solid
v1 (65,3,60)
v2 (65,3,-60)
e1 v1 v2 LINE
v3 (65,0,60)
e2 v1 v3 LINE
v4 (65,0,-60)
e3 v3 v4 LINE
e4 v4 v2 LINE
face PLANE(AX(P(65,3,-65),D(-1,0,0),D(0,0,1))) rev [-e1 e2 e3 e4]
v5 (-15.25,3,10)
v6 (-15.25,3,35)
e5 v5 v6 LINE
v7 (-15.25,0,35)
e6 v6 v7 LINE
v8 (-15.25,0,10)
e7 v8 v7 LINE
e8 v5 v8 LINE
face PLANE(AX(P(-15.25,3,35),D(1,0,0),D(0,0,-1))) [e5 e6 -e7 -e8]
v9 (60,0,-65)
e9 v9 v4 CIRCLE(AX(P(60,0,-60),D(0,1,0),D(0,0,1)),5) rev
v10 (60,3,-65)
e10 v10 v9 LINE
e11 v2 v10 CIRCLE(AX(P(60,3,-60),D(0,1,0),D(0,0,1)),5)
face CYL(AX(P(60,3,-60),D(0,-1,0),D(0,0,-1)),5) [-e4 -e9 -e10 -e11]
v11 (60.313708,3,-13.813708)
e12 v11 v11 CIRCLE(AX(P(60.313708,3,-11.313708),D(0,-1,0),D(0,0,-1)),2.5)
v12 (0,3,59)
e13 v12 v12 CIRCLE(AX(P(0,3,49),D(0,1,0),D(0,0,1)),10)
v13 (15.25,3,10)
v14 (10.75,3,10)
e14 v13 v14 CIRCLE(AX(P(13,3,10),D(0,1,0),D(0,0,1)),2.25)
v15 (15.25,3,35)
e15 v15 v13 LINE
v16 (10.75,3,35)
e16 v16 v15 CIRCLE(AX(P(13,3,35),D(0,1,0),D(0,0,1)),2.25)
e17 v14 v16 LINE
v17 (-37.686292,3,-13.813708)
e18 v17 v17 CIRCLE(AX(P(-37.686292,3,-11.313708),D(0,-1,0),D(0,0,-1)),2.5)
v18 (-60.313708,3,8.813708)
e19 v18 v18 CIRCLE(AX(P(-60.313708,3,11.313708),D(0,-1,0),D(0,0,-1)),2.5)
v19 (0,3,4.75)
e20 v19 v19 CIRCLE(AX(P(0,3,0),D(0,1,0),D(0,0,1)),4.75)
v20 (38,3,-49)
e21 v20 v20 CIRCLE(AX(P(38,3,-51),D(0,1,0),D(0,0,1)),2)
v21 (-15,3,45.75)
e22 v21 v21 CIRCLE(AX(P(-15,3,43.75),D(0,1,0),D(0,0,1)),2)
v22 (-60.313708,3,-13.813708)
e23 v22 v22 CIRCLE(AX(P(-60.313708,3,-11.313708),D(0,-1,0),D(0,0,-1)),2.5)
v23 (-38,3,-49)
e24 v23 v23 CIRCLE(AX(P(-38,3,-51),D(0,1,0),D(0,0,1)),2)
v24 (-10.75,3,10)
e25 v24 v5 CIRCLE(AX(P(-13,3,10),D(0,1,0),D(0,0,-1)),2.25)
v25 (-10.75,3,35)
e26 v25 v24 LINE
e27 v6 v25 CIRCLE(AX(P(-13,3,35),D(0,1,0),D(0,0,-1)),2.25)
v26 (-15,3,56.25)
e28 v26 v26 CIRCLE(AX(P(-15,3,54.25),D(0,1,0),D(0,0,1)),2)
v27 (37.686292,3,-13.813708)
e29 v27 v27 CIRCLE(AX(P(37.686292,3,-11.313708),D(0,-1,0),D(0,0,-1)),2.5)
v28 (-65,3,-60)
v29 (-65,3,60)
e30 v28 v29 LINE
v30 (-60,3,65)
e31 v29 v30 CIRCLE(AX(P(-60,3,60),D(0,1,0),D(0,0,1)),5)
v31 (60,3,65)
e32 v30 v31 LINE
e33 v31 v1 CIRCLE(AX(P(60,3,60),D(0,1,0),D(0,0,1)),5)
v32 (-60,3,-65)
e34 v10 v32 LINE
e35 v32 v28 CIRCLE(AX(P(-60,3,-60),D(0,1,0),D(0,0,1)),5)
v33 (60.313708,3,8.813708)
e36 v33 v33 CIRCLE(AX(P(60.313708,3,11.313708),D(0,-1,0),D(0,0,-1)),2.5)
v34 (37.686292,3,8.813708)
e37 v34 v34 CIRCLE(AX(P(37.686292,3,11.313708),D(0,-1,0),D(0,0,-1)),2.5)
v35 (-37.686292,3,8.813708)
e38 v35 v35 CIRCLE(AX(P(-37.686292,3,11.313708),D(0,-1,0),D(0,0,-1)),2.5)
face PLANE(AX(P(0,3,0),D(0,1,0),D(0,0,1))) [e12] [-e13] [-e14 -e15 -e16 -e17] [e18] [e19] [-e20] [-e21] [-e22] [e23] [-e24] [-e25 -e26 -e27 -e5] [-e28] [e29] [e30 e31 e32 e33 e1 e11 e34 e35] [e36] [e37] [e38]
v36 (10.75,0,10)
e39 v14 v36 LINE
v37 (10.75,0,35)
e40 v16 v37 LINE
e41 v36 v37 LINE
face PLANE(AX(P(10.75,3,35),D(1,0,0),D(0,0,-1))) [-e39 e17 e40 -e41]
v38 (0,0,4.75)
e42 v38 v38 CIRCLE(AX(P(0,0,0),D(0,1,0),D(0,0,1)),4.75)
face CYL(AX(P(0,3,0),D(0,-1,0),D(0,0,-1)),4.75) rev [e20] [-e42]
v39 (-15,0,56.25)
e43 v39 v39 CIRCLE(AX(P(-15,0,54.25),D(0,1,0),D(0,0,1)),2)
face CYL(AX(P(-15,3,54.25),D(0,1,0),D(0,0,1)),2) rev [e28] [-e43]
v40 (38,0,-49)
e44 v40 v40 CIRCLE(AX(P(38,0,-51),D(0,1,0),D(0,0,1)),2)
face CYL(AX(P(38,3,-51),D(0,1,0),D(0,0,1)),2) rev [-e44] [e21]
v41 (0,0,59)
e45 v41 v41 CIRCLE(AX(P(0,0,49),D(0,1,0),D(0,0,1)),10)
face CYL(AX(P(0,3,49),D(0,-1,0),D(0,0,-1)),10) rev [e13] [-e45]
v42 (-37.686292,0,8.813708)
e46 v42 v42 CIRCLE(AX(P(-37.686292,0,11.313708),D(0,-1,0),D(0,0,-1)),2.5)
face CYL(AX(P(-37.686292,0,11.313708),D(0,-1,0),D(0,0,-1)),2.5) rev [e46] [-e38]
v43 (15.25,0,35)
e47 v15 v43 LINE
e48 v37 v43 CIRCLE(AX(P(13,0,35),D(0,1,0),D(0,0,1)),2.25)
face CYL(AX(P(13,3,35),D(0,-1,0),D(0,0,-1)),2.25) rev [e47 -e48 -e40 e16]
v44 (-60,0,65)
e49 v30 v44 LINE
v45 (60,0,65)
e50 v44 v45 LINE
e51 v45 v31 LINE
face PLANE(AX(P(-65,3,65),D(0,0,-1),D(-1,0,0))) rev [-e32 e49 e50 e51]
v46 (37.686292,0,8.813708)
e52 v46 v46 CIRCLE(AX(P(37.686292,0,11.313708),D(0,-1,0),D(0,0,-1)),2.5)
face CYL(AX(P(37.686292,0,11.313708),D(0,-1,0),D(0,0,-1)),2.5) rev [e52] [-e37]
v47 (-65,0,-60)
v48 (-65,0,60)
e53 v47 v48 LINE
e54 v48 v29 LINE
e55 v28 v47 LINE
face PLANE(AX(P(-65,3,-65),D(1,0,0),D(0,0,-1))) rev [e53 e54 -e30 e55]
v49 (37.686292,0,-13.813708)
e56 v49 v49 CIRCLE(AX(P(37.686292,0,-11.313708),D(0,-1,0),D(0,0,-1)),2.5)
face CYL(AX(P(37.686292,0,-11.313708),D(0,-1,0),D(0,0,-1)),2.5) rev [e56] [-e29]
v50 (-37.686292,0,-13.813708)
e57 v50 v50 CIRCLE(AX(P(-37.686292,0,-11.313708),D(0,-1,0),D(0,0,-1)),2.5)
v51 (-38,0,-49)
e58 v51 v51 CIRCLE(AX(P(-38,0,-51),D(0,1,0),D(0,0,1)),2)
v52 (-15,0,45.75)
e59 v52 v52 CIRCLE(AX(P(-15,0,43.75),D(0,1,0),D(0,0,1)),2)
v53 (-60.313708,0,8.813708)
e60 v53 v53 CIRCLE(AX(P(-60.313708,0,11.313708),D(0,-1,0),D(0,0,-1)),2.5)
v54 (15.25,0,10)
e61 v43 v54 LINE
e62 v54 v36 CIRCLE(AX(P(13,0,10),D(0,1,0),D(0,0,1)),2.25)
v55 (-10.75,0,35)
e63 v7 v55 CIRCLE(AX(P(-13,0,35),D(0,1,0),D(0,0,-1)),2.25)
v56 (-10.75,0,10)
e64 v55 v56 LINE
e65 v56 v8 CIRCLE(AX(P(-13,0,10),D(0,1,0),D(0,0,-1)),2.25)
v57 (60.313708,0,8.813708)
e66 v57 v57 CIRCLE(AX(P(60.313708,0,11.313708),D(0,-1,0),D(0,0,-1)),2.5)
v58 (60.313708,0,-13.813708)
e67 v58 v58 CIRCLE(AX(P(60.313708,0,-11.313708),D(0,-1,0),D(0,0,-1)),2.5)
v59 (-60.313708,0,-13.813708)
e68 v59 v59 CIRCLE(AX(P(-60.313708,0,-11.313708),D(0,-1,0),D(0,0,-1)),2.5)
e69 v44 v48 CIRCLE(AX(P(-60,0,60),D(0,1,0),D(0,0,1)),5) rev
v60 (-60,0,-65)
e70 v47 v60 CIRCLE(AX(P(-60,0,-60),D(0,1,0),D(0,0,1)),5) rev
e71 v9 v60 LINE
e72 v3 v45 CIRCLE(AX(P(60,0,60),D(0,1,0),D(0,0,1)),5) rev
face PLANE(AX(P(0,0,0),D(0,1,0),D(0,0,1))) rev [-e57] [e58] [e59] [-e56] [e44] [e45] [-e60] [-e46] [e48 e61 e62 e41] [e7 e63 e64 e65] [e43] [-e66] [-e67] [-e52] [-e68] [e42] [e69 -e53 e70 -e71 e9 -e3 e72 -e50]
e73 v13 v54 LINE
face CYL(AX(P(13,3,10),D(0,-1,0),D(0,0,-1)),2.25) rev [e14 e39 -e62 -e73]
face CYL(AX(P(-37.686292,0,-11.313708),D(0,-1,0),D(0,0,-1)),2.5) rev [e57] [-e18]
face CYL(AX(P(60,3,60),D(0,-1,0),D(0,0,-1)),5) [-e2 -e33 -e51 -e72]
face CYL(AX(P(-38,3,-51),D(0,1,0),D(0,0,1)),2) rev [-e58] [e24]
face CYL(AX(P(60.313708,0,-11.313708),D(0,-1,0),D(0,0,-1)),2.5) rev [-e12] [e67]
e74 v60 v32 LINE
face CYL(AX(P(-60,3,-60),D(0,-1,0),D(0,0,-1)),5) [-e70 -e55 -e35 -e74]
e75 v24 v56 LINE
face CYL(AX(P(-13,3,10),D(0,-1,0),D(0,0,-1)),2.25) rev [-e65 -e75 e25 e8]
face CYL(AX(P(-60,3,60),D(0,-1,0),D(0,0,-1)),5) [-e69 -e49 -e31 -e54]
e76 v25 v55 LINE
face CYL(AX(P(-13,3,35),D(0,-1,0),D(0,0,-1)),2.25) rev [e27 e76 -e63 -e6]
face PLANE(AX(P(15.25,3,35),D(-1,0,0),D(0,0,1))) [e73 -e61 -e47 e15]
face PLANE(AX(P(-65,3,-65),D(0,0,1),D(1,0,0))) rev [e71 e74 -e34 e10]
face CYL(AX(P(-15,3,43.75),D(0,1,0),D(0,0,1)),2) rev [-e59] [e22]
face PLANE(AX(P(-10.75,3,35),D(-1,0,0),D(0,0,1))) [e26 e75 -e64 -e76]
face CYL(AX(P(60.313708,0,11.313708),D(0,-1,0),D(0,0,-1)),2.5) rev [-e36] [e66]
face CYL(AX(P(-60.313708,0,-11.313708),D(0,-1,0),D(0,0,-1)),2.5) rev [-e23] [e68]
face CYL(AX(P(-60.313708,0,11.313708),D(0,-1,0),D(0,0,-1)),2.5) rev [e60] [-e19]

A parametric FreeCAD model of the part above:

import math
import FreeCAD as App
import Part
import Sketcher


def edges_at(feature, points):
    """Names of the edges that pass closest to the given points."""
    edges = feature.Shape.Edges
    near = lambda p: min(range(len(edges)), key=lambda i: edges[i].distToShape(Part.Vertex(*p))[0])
    return sorted({f"Edge{near(p) + 1}" for p in points})


def add_polygon(sketch, points):
    """Adds a closed chain of lines whose ends are joined by coincident constraints."""
    first, n = sketch.GeometryCount, len(points)
    for a, b in zip(points, points[1:] + points[:1]):
        sketch.addGeometry(Part.LineSegment(App.Vector(*a, 0), App.Vector(*b, 0)), False)
    for i in range(n):
        sketch.addConstraint(Sketcher.Constraint("Coincident", first + i, 2, first + (i + 1) % n, 1))

doc = App.newDocument("Part")
body = doc.addObject("PartDesign::Body", "Body")

# Sketch on XZ plane
sketch1 = body.newObject("Sketcher::SketchObject", "Sketch")
sketch1.AttachmentSupport = (doc.getObject("XZ_Plane"), [""])
sketch1.MapMode = "FlatFace"
add_polygon(sketch1, [(-65, -65), (-65, 65), (65, 65), (65, -65)])  # lines 0-3
sketch1.addConstraint([
    Sketcher.Constraint("Vertical", 0),
    Sketcher.Constraint("Horizontal", 1),
    Sketcher.Constraint("Vertical", 2),
    Sketcher.Constraint("Horizontal", 3),
    Sketcher.Constraint("Symmetric", 0, 2, 2, 2, -1, 1),
    Sketcher.Constraint("Equal", 3, 0),
    Sketcher.Constraint("DistanceX", 1, 1, 1, 2, 130.0),
])
pad1 = body.newObject("PartDesign::Pad", "Pad")
pad1.Profile = sketch1
pad1.Length = 3
pad1.Reversed = True
doc.recompute()

fillet = body.newObject("PartDesign::Fillet", "Fillet")
fillet.Base = (pad1, edges_at(pad1, [
    (65, 1.5, 65),
    (-65, 1.5, 65),
    (-65, 1.5, -65),
    (65, 1.5, -65),
]))
fillet.Radius = 5

# Sketch on XZ plane
sketch2 = body.newObject("Sketcher::SketchObject", "Sketch001")
sketch2.AttachmentSupport = (doc.getObject("XZ_Plane"), [""])
sketch2.MapMode = "FlatFace"
sketch2.addGeometry(Part.Circle(App.Vector(0, 0, 0), App.Vector(0, 0, 1), 4.8), False)
sketch2.addConstraint([
    Sketcher.Constraint("Coincident", 0, 3, -1, 1),
    Sketcher.Constraint("Diameter", 0, 9.5),
])
pocket1 = body.newObject("PartDesign::Pocket", "Pocket")
pocket1.Profile = sketch2
pocket1.Type = "ThroughAll"

# Sketch on XZ plane
sketch3 = body.newObject("Sketcher::SketchObject", "Sketch002")
sketch3.AttachmentSupport = (doc.getObject("XZ_Plane"), [""])
sketch3.MapMode = "FlatFace"
sketch3.addGeometry([
    Part.Circle(App.Vector(-60.3, -11.3, 0), App.Vector(0, 0, 1), 2.5),
    Part.Circle(App.Vector(-60.3, 11.3, 0), App.Vector(0, 0, 1), 2.5),
    Part.Circle(App.Vector(-37.7, 11.3, 0), App.Vector(0, 0, 1), 2.5),
    Part.Circle(App.Vector(-37.7, -11.3, 0), App.Vector(0, 0, 1), 2.5),
], False)
sketch3.addConstraint([
    Sketcher.Constraint("Equal", 0, 1),
    Sketcher.Constraint("Equal", 1, 2),
    Sketcher.Constraint("Equal", 2, 3),
    Sketcher.Constraint("Symmetric", 0, 3, 1, 3, -1),
    Sketcher.Constraint("Symmetric", 2, 3, 3, 3, -1),
    Sketcher.Constraint("Horizontal", 1, 3, 2, 3),
    Sketcher.Constraint("Diameter", 0, 5.0),
    Sketcher.Constraint("DistanceX", 0, 3, -1, 1, 60.313708),
    Sketcher.Constraint("DistanceY", 0, 3, -1, 1, 11.313708),
    Sketcher.Constraint("DistanceX", 2, 3, -1, 1, 37.686292),
])
doc.recompute()
hole = body.newObject("PartDesign::Hole", "Hole")
hole.Profile = sketch3
hole.ThreadType = "None"
hole.Diameter = 5
hole.DepthType = "ThroughAll"
doc.recompute()

mirrored = body.newObject("PartDesign::Mirrored", "Mirrored")
mirrored.Originals = [hole]
mirrored.MirrorPlane = (doc.getObject("YZ_Plane"), [""])
body.Tip = mirrored

# Sketch on XZ plane
sketch4 = body.newObject("Sketcher::SketchObject", "Sketch003")
sketch4.AttachmentSupport = (doc.getObject("XZ_Plane"), [""])
sketch4.MapMode = "FlatFace"
sketch4.AttachmentOffset = App.Placement(App.Vector(0, 0, -3), App.Rotation())
sketch4.addGeometry([
    Part.Circle(App.Vector(38, -51, 0), App.Vector(0, 0, 1), 2),
    Part.Circle(App.Vector(-38, -51, 0), App.Vector(0, 0, 1), 2),
], False)
sketch4.addConstraint([
    Sketcher.Constraint("Equal", 0, 1),
    Sketcher.Constraint("Symmetric", 0, 3, 1, 3, -2),
    Sketcher.Constraint("Diameter", 0, 4.0),
    Sketcher.Constraint("DistanceX", -1, 1, 0, 3, 38.0),
    Sketcher.Constraint("DistanceY", 0, 3, -1, 1, 51.0),
])
doc.recompute()
hole2 = body.newObject("PartDesign::Hole", "Hole001")
hole2.Profile = sketch4
hole2.ThreadType = "None"
hole2.Diameter = 4
hole2.DepthType = "ThroughAll"
hole2.Reversed = True

# Sketch on XZ plane
sketch5 = body.newObject("Sketcher::SketchObject", "Sketch004")
sketch5.AttachmentSupport = (doc.getObject("XZ_Plane"), [""])
sketch5.MapMode = "FlatFace"
sketch5.addGeometry([
    Part.Circle(App.Vector(0, 49, 0), App.Vector(0, 0, 1), 10),  # 0
    Part.LineSegment(App.Vector(10.8, 10, 0), App.Vector(10.8, 35, 0)),  # 1
    Part.ArcOfCircle(Part.Circle(App.Vector(13, 35, 0), App.Vector(0, 0, 1), 2.2), math.radians(0), math.radians(180)),  # 2
    Part.LineSegment(App.Vector(15.2, 35, 0), App.Vector(15.2, 10, 0)),  # 3
    Part.ArcOfCircle(Part.Circle(App.Vector(13, 10, 0), App.Vector(0, 0, 1), 2.2), math.radians(180), math.radians(360)),  # 4
    Part.LineSegment(App.Vector(-10.8, 35, 0), App.Vector(-10.8, 10, 0)),  # 5
    Part.ArcOfCircle(Part.Circle(App.Vector(-13, 10, 0), App.Vector(0, 0, 1), 2.2), math.radians(180), math.radians(360)),  # 6
    Part.LineSegment(App.Vector(-15.2, 10, 0), App.Vector(-15.2, 35, 0)),  # 7
    Part.ArcOfCircle(Part.Circle(App.Vector(-13, 35, 0), App.Vector(0, 0, 1), 2.2), math.radians(0), math.radians(180)),  # 8
], False)
sketch5.addConstraint([
    Sketcher.Constraint("Tangent", 1, 2, 2, 2),
    Sketcher.Constraint("Tangent", 2, 1, 3, 1),
    Sketcher.Constraint("Tangent", 3, 2, 4, 2),
    Sketcher.Constraint("Tangent", 4, 1, 1, 1),
    Sketcher.Constraint("Tangent", 5, 2, 6, 2),
    Sketcher.Constraint("Tangent", 6, 1, 7, 1),
    Sketcher.Constraint("Tangent", 7, 2, 8, 2),
    Sketcher.Constraint("Tangent", 8, 1, 5, 1),
    Sketcher.Constraint("Vertical", 1),
    Sketcher.Constraint("Vertical", 3),
    Sketcher.Constraint("Vertical", 5),
    Sketcher.Constraint("Vertical", 7),
    Sketcher.Constraint("Equal", 4, 6),
    Sketcher.Constraint("Symmetric", 4, 3, 6, 3, -2),
    Sketcher.Constraint("PointOnObject", 0, 3, -2),
    Sketcher.Constraint("Horizontal", 2, 3, 8, 3),
    Sketcher.Constraint("Diameter", 0, 20.0),
    Sketcher.Constraint("DistanceY", 1, 1, 1, 2, 25.0),
    Sketcher.Constraint("Radius", 2, 2.25),
    Sketcher.Constraint("DistanceY", -1, 1, 0, 3, 49.0),
    Sketcher.Constraint("DistanceX", -1, 1, 2, 3, 13.0),
    Sketcher.Constraint("DistanceY", -1, 1, 2, 3, 35.0),
])
pocket2 = body.newObject("PartDesign::Pocket", "Pocket001")
pocket2.Profile = sketch5
pocket2.Type = "ThroughAll"

# Sketch on XZ plane
sketch6 = body.newObject("Sketcher::SketchObject", "Sketch005")
sketch6.AttachmentSupport = (doc.getObject("XZ_Plane"), [""])
sketch6.MapMode = "FlatFace"
sketch6.AttachmentOffset = App.Placement(App.Vector(0, 0, -3), App.Rotation())
sketch6.addGeometry([
    Part.Circle(App.Vector(-15, 54.2, 0), App.Vector(0, 0, 1), 2),
    Part.Circle(App.Vector(-15, 43.8, 0), App.Vector(0, 0, 1), 2),
], False)
sketch6.addConstraint([
    Sketcher.Constraint("Equal", 0, 1),
    Sketcher.Constraint("Vertical", 0, 3, 1, 3),
    Sketcher.Constraint("Diameter", 0, 4.0),
    Sketcher.Constraint("DistanceX", 0, 3, -1, 1, 15.0),
    Sketcher.Constraint("DistanceY", 1, 3, 0, 3, 10.5),
    Sketcher.Constraint("DistanceY", -1, 1, 0, 3, 54.25),
])
doc.recompute()
hole3 = body.newObject("PartDesign::Hole", "Hole002")
hole3.Profile = sketch6
hole3.ThreadType = "None"
hole3.Diameter = 4
hole3.DepthType = "ThroughAll"
hole3.Reversed = True

doc.recompute()
